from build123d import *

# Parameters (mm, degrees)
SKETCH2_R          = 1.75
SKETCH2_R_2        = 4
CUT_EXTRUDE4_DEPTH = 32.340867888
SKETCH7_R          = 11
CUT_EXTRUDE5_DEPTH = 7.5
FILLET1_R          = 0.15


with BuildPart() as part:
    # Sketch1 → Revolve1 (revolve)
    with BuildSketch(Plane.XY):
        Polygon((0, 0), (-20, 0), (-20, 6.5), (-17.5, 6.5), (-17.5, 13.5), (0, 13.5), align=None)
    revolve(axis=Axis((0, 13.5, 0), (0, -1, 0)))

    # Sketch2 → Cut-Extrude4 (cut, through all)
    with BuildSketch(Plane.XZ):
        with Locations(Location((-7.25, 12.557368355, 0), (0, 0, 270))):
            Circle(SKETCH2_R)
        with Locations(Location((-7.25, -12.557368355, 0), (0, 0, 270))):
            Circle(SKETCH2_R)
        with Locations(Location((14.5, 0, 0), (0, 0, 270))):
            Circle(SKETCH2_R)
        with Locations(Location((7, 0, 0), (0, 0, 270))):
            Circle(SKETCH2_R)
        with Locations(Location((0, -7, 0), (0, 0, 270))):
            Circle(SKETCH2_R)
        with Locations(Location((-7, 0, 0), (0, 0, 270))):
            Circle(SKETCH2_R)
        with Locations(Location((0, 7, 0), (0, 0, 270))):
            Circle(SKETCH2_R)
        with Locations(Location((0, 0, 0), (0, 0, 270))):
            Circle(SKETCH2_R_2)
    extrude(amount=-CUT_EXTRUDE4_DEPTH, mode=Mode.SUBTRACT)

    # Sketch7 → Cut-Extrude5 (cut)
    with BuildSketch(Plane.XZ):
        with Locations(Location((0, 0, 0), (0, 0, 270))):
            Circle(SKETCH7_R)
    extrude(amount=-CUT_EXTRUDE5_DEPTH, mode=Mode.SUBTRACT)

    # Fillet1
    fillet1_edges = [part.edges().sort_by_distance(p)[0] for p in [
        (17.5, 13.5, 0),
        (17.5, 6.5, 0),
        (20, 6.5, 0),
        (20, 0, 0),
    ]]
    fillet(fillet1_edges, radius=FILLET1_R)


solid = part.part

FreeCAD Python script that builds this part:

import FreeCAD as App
import Part
import Sketcher


def edges_at(feature, points):
    """Names of the edges that pass closest to the given points."""
    edges = feature.Shape.Edges
    near = lambda p: min(range(len(edges)), key=lambda i: edges[i].distToShape(Part.Vertex(*p))[0])
    return sorted({f"Edge{near(p) + 1}" for p in points})

doc = App.newDocument("Part")
body = doc.addObject("PartDesign::Body", "Body")

# Sketch on XY plane
sketch1 = doc.addObject("Sketcher::SketchObject", "Sketch")
body.addObject(sketch1)
sketch1.AttachmentSupport = (doc.XY_Plane, [""])
sketch1.MapMode = "FlatFace"
sketch1.addGeometry([
    Part.LineSegment(App.Vector(-20, 0, 0), App.Vector(0, 0, 0)),  # 0
    Part.LineSegment(App.Vector(0, 0, 0), App.Vector(0, 13.5, 0)),  # 1
    Part.LineSegment(App.Vector(0, 13.5, 0), App.Vector(-17.5, 13.5, 0)),  # 2
    Part.LineSegment(App.Vector(-17.5, 13.5, 0), App.Vector(-17.5, 6.5, 0)),  # 3
    Part.LineSegment(App.Vector(-17.5, 6.5, 0), App.Vector(-20, 6.5, 0)),  # 4
    Part.LineSegment(App.Vector(-20, 6.5, 0), App.Vector(-20, 0, 0)),  # 5
], False)
sketch1.addConstraint([
    Sketcher.Constraint("Coincident", 0, 2, 1, 1),
    Sketcher.Constraint("Coincident", 1, 2, 2, 1),
    Sketcher.Constraint("Coincident", 2, 2, 3, 1),
    Sketcher.Constraint("Coincident", 3, 2, 4, 1),
    Sketcher.Constraint("Coincident", 4, 2, 5, 1),
    Sketcher.Constraint("Coincident", 5, 2, 0, 1),
    Sketcher.Constraint("Horizontal", 0),
    Sketcher.Constraint("Vertical", 1),
    Sketcher.Constraint("Horizontal", 2),
    Sketcher.Constraint("Vertical", 3),
    Sketcher.Constraint("Horizontal", 4),
    Sketcher.Constraint("Vertical", 5),
    Sketcher.Constraint("Coincident", 0, 2, -1, 1),
    Sketcher.Constraint("DistanceX", 0, 1, 0, 2, 20.0),
    Sketcher.Constraint("DistanceY", 3, 2, 3, 1, 7.0),
    Sketcher.Constraint("DistanceX", 2, 2, 2, 1, 17.5),
    Sketcher.Constraint("DistanceY", 1, 1, 1, 2, 13.5),
])
revolution = doc.addObject("PartDesign::Revolution", "Revolution")
body.addObject(revolution)
revolution.Profile = sketch1
revolution.ReferenceAxis = (sketch1, ["V_Axis"])
revolution.Angle = 360

# Sketch on XZ plane
sketch2 = doc.addObject("Sketcher::SketchObject", "Sketch001")
body.addObject(sketch2)
sketch2.AttachmentSupport = (doc.XZ_Plane, [""])
sketch2.MapMode = "FlatFace"
sketch2.addGeometry([
    Part.Circle(App.Vector(-7.25, 12.557368, 0), App.Vector(0, 0, 1), 1.75),  # 0
    Part.Circle(App.Vector(-7.25, -12.557368, 0), App.Vector(0, 0, 1), 1.75),  # 1
    Part.Circle(App.Vector(14.5, 0, 0), App.Vector(0, 0, 1), 1.75),  # 2
    Part.Circle(App.Vector(7, 0, 0), App.Vector(0, 0, 1), 1.75),  # 3
    Part.Circle(App.Vector(0, -7, 0), App.Vector(0, 0, 1), 1.75),  # 4
    Part.Circle(App.Vector(-7, 0, 0), App.Vector(0, 0, 1), 1.75),  # 5
    Part.Circle(App.Vector(0, 7, 0), App.Vector(0, 0, 1), 1.75),  # 6
    Part.Circle(App.Vector(0, 0, 0), App.Vector(0, 0, 1), 4),  # 7
], False)
sketch2.addConstraint([
    Sketcher.Constraint("Coincident", 7, 3, -1, 1),
    Sketcher.Constraint("Equal", 0, 1),
    Sketcher.Constraint("Equal", 1, 2),
    Sketcher.Constraint("Equal", 2, 3),
    Sketcher.Constraint("Equal", 3, 4),
    Sketcher.Constraint("Equal", 4, 5),
    Sketcher.Constraint("Equal", 5, 6),
    Sketcher.Constraint("Symmetric", 3, 3, 5, 3, -1, 1),
    Sketcher.Constraint("Symmetric", 4, 3, 6, 3, -1, 1),
    Sketcher.Constraint("Symmetric", 0, 3, 1, 3, -1),
    Sketcher.Constraint("PointOnObject", 2, 3, -1),
    Sketcher.Constraint("PointOnObject", 3, 3, -1),
    Sketcher.Constraint("PointOnObject", 4, 3, -2),
    Sketcher.Constraint("Diameter", 7, 8.0),
    Sketcher.Constraint("Diameter", 0, 3.5),
    Sketcher.Constraint("DistanceX", -1, 1, 3, 3, 7.0),
    Sketcher.Constraint("DistanceY", 4, 3, -1, 1, 7.0),
    Sketcher.Constraint("DistanceX", -1, 1, 2, 3, 14.5),
    Sketcher.Constraint("DistanceX", 0, 3, -1, 1, 7.25),
    Sketcher.Constraint("DistanceY", -1, 1, 0, 3, 12.557368),
])
pocket1 = doc.addObject("PartDesign::Pocket", "Pocket")
body.addObject(pocket1)
pocket1.Profile = sketch2
pocket1.Type = "ThroughAll"

# Sketch on XZ plane
sketch3 = doc.addObject("Sketcher::SketchObject", "Sketch002")
body.addObject(sketch3)
sketch3.AttachmentSupport = (doc.XZ_Plane, [""])
sketch3.MapMode = "FlatFace"
sketch3.addGeometry(Part.Circle(App.Vector(0, 0, 0), App.Vector(0, 0, 1), 11), False)
sketch3.addConstraint([
    Sketcher.Constraint("Coincident", 0, 3, -1, 1),
    Sketcher.Constraint("Diameter", 0, 22.0),
])
pocket2 = doc.addObject("PartDesign::Pocket", "Pocket001")
body.addObject(pocket2)
pocket2.Profile = sketch3
pocket2.Length = 7.5
doc.recompute()

fillet = doc.addObject("PartDesign::Fillet", "Fillet")
body.addObject(fillet)
fillet.Base = (pocket2, edges_at(pocket2, [
    (17.5, 13.5, 0),
    (17.5, 6.5, 0),
    (20, 6.5, 0),
    (20, 0, 0),
]))
fillet.Radius = 0.15

doc.recompute()
